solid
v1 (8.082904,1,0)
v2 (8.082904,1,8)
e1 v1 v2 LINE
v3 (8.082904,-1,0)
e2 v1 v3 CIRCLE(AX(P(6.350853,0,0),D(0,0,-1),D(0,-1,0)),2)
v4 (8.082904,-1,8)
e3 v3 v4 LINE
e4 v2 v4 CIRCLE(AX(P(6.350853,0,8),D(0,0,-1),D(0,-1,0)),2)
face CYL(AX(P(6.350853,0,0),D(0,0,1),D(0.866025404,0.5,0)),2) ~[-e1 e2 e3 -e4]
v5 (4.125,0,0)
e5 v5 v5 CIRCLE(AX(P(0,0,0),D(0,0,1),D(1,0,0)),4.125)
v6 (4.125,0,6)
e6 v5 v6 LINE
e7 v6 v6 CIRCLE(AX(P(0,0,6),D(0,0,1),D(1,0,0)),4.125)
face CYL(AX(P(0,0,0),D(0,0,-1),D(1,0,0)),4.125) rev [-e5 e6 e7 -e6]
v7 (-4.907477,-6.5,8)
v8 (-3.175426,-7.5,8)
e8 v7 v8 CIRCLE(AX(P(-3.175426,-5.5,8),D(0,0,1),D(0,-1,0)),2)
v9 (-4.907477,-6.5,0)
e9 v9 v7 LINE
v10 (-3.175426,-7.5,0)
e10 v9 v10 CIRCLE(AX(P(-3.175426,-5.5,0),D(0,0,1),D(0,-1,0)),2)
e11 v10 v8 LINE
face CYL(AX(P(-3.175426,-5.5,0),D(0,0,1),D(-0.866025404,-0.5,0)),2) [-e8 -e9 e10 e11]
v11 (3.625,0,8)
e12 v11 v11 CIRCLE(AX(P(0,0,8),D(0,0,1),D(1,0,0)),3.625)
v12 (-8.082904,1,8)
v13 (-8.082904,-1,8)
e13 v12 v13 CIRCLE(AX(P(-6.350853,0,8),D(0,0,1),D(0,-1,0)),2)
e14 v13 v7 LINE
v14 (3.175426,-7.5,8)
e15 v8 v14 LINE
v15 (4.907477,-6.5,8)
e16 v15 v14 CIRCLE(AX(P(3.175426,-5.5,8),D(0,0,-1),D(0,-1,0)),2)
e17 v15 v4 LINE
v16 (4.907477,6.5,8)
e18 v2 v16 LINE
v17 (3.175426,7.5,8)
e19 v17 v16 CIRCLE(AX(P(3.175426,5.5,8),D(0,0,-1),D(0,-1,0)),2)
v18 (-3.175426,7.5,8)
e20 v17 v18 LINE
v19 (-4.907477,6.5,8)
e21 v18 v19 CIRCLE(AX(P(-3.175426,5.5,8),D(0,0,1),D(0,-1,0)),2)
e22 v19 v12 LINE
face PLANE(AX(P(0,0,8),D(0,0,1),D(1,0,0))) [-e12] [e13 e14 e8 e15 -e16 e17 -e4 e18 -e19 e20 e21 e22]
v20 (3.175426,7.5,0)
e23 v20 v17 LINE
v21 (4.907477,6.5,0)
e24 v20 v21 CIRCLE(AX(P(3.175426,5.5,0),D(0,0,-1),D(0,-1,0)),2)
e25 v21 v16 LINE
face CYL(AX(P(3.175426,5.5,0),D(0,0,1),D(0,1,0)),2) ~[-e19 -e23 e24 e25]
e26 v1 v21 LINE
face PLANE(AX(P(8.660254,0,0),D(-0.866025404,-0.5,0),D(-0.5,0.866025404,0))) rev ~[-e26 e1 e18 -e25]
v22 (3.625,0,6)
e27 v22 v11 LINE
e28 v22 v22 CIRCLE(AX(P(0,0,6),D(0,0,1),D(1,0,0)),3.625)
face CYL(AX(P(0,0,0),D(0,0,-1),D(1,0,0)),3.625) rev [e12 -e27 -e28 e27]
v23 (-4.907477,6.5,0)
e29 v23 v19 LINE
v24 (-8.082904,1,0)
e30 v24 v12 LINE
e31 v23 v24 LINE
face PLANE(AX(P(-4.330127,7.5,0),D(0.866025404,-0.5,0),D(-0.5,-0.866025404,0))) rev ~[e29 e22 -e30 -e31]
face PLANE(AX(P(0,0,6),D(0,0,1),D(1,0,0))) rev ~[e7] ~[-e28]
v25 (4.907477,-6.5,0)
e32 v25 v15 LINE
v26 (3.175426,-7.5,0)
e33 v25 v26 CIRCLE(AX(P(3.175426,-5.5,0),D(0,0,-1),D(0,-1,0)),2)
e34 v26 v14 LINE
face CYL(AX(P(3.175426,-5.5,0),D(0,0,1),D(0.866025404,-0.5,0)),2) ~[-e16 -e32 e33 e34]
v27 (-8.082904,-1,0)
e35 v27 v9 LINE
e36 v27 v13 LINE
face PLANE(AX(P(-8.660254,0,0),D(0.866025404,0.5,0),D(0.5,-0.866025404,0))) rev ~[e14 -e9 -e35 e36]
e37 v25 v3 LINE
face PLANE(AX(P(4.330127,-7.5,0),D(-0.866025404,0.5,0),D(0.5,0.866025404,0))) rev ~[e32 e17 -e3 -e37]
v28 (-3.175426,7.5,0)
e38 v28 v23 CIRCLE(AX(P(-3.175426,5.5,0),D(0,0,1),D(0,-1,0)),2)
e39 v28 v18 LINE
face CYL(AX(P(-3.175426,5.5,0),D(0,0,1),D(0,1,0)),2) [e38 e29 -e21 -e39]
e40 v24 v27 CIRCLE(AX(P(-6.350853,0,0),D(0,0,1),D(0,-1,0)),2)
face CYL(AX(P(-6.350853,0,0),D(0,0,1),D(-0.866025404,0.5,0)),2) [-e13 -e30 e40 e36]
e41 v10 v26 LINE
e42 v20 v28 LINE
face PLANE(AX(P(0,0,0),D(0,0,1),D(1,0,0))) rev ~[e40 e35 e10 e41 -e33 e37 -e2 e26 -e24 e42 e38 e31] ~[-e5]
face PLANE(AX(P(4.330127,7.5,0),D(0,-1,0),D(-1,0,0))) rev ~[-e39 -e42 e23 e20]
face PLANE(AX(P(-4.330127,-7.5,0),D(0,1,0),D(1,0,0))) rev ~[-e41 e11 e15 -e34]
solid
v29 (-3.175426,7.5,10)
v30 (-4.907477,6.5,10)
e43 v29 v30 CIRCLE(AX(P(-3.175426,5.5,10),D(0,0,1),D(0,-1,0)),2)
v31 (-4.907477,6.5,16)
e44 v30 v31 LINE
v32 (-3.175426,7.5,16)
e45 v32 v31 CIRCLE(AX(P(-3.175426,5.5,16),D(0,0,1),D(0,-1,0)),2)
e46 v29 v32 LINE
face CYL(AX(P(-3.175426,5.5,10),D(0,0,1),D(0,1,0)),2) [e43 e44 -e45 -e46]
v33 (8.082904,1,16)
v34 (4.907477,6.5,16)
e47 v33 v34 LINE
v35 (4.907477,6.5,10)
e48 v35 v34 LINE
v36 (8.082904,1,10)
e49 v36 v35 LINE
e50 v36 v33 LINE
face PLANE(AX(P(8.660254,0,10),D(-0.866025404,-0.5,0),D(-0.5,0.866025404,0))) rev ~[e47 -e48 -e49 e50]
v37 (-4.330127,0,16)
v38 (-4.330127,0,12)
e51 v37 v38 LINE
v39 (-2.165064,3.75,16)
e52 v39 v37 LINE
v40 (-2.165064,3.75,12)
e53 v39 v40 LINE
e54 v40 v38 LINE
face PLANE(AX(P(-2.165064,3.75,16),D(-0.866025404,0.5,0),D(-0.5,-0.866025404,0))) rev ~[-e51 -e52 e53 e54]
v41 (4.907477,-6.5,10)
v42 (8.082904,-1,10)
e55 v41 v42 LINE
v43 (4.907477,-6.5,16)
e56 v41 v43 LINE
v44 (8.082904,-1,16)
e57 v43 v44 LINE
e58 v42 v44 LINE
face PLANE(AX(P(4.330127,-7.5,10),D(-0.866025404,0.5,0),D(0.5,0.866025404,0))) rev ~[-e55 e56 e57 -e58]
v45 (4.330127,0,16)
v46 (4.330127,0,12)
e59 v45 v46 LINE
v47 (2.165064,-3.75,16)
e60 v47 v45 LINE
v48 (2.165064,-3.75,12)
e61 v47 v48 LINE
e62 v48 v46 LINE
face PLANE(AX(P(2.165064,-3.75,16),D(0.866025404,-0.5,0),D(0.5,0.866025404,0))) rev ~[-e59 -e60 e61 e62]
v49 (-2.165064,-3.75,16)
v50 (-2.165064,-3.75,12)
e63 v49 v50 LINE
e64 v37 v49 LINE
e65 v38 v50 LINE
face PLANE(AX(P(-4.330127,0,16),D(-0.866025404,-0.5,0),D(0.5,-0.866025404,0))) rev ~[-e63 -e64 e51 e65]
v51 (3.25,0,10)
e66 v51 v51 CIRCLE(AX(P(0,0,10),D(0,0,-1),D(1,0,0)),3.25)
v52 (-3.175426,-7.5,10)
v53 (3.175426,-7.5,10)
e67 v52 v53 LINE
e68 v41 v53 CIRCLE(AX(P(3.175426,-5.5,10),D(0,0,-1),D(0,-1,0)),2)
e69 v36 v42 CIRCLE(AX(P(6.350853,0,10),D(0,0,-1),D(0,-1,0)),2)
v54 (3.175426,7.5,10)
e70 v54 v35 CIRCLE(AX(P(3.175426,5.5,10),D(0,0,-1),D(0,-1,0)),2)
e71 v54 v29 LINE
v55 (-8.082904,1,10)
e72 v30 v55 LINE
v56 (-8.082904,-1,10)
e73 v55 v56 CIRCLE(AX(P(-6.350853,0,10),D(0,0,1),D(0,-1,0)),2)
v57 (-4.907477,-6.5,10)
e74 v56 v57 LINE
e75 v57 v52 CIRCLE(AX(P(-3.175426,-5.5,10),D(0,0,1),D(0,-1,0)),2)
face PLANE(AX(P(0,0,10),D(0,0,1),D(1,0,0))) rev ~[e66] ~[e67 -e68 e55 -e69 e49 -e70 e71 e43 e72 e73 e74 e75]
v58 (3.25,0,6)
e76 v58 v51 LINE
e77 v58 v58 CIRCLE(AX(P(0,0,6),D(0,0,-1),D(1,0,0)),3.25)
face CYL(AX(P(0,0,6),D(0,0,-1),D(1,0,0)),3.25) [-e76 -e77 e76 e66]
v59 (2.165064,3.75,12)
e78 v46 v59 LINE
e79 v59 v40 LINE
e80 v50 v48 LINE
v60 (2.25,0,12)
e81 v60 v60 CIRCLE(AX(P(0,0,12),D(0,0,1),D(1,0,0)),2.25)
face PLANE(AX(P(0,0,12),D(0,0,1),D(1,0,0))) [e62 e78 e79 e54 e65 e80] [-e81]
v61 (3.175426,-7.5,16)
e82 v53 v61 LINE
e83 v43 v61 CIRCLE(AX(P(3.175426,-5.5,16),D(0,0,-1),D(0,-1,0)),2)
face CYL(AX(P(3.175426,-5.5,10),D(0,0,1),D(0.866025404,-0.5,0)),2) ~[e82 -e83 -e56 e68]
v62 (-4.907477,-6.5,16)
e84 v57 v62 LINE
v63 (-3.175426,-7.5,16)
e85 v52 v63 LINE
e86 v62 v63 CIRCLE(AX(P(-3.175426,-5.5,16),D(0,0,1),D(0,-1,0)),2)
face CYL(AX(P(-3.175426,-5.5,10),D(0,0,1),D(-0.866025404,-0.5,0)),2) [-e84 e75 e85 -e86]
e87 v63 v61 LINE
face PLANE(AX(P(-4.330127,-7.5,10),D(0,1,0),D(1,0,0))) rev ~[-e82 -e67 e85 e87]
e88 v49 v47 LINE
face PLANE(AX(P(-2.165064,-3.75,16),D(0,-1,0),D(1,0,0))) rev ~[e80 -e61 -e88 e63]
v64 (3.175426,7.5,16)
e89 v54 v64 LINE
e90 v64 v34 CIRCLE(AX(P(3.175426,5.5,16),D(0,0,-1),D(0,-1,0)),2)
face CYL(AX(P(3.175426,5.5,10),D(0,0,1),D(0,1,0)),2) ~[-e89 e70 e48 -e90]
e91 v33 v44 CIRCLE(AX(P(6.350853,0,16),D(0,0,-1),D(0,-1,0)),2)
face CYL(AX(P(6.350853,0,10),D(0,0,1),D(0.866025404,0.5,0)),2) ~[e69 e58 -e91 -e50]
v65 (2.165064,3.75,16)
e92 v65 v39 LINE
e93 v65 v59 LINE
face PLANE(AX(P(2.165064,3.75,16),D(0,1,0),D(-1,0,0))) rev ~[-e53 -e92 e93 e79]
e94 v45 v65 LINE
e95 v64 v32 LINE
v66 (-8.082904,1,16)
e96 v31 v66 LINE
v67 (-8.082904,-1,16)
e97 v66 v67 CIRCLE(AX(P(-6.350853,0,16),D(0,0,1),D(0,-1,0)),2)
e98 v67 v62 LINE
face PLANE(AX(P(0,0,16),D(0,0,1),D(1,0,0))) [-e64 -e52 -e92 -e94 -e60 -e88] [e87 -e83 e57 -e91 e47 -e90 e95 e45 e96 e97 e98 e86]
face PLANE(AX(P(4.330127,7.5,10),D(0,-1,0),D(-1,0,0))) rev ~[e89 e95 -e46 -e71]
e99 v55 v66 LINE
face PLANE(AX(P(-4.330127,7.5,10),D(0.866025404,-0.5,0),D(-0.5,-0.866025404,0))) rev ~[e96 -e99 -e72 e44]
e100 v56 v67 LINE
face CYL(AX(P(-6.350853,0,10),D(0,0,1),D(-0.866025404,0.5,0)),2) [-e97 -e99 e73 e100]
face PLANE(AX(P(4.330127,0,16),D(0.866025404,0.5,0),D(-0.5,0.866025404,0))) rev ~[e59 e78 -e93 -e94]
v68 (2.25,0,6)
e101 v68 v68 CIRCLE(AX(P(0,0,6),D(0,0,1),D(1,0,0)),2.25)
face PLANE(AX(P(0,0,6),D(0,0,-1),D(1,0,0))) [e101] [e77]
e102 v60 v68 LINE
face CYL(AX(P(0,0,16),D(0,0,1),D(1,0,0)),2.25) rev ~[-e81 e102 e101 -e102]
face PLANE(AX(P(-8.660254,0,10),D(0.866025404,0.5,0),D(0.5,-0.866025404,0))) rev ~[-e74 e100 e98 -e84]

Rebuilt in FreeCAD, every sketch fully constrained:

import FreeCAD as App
import Part
import Sketcher
Q = App.Units.Quantity


def edges_at(feature, points):
    """Names of the edges that pass closest to the given points."""
    edges = feature.Shape.Edges
    near = lambda p: min(range(len(edges)), key=lambda i: edges[i].distToShape(Part.Vertex(*p))[0])
    return sorted({f"Edge{near(p) + 1}" for p in points})


def add_polygon(sketch, points):
    """Adds a closed chain of lines whose ends are joined by coincident constraints."""
    first, n = sketch.GeometryCount, len(points)
    for a, b in zip(points, points[1:] + points[:1]):
        sketch.addGeometry(Part.LineSegment(App.Vector(*a, 0), App.Vector(*b, 0)), False)
    for i in range(n):
        sketch.addConstraint(Sketcher.Constraint("Coincident", first + i, 2, first + (i + 1) % n, 1))

doc = App.newDocument("Part")
body = doc.addObject("PartDesign::Body", "Body")

# Sketch on XY plane
sketch1 = doc.addObject("Sketcher::SketchObject", "Sketch")
body.addObject(sketch1)
sketch1.AttachmentSupport = (doc.XY_Plane, [""])
sketch1.MapMode = "FlatFace"
add_polygon(sketch1, [(4.3, 7.5), (-4.3, 7.5), (-8.7, 0), (-4.3, -7.5), (4.3, -7.5), (8.7, 0)])  # lines 0-5
sketch1.addGeometry(Part.Circle(App.Vector(0, 0, 0), App.Vector(0, 0, 1), 3.6), False)  # 6
sketch1.addConstraint(Sketcher.Constraint("Horizontal", 0))
sketch1.addConstraint(Sketcher.Constraint("Horizontal", 3))
sketch1.addConstraint(Sketcher.Constraint("Coincident", 6, 3, -1, 1))
sketch1.addConstraint(Sketcher.Constraint("Symmetric", 0, 2, 3, 2, -1, 1))
sketch1.addConstraint(Sketcher.Constraint("Symmetric", 1, 2, 4, 2, -1, 1))
sketch1.addConstraint(Sketcher.Constraint("PointOnObject", 1, 2, -1))
sketch1.addConstraint(Sketcher.Constraint("Parallel", 2, 5))
sketch1.addConstraint(Sketcher.Constraint("Vertical", 0, 2, 2, 2))
sketch1.addConstraint(Sketcher.Constraint("Diameter", 6, Q("7.25 mm")))
sketch1.addConstraint(Sketcher.Constraint("Angle", 1, Q("-120 deg")))
sketch1.addConstraint(Sketcher.Constraint("DistanceY", 2, 2, 0, 2, Q("15 mm")))
sketch1.addConstraint(Sketcher.Constraint("DistanceX", 0, 2, 0, 1, Q("8.660254 mm")))
pad1 = doc.addObject("PartDesign::Pad", "Pad")
body.addObject(pad1)
pad1.Profile = sketch1
pad1.Length = 8

# Sketch on XY plane
sketch2 = doc.addObject("Sketcher::SketchObject", "Sketch001")
body.addObject(sketch2)
sketch2.AttachmentSupport = (doc.XY_Plane, [""])
sketch2.MapMode = "FlatFace"
sketch2.addGeometry(Part.Circle(App.Vector(0, 0, 0), App.Vector(0, 0, 1), 4.1), False)
sketch2.addGeometry(Part.Circle(App.Vector(0, 0, 0), App.Vector(0, 0, 1), 3.6), False)
sketch2.addConstraint(Sketcher.Constraint("Coincident", 0, 3, -1, 1))
sketch2.addConstraint(Sketcher.Constraint("Coincident", 1, 3, -1, 1))
sketch2.addConstraint(Sketcher.Constraint("Diameter", 0, Q("8.25 mm")))
sketch2.addConstraint(Sketcher.Constraint("Diameter", 1, Q("7.25 mm")))
pocket1 = doc.addObject("PartDesign::Pocket", "Pocket")
body.addObject(pocket1)
pocket1.Profile = sketch2
pocket1.Length = 6
pocket1.Reversed = True
doc.recompute()

fillet = doc.addObject("PartDesign::Fillet", "Fillet")
body.addObject(fillet)
fillet.Base = (pocket1, edges_at(pocket1, [
    (-8.66, 0, 4),
    (-4.33, 7.5, 4),
    (-4.33, -7.5, 4),
    (4.33, -7.5, 4),
    (8.66, 0, 4),
    (4.33, 7.5, 4),
]))
fillet.Radius = 2
body2 = doc.addObject("PartDesign::Body", "Body001")

# Sketch on XY plane
sketch3 = doc.addObject("Sketcher::SketchObject", "Sketch002")
body2.addObject(sketch3)
sketch3.AttachmentSupport = (doc.getObject("XY_Plane001"), [""])
sketch3.MapMode = "FlatFace"
sketch3.AttachmentOffset = App.Placement(App.Vector(0, 0, 6), App.Rotation())
sketch3.addGeometry(Part.Circle(App.Vector(0, 0, 0), App.Vector(0, 0, 1), 3.2), False)
sketch3.addConstraint(Sketcher.Constraint("Coincident", 0, 3, -1, 1))
sketch3.addConstraint(Sketcher.Constraint("Diameter", 0, Q("6.5 mm")))
pad2 = doc.addObject("PartDesign::Pad", "Pad001")
body2.addObject(pad2)
pad2.Profile = sketch3
pad2.Length = 4

# Sketch on XY plane
sketch4 = doc.addObject("Sketcher::SketchObject", "Sketch003")
body2.addObject(sketch4)
sketch4.AttachmentSupport = (doc.getObject("XY_Plane001"), [""])
sketch4.MapMode = "FlatFace"
sketch4.AttachmentOffset = App.Placement(App.Vector(0, 0, 10), App.Rotation())
add_polygon(sketch4, [(4, 8), (-4, 8), (-9, 0), (-4, -8), (4, -8), (9, 0)])  # lines 0-5
sketch4.addConstraint(Sketcher.Constraint("Horizontal", 0))
sketch4.addConstraint(Sketcher.Constraint("Horizontal", 3))
sketch4.addConstraint(Sketcher.Constraint("Symmetric", 0, 2, 3, 2, -1, 1))
sketch4.addConstraint(Sketcher.Constraint("Symmetric", 1, 2, 4, 2, -1, 1))
sketch4.addConstraint(Sketcher.Constraint("PointOnObject", 1, 2, -1))
sketch4.addConstraint(Sketcher.Constraint("Parallel", 2, 5))
sketch4.addConstraint(Sketcher.Constraint("Vertical", 0, 2, 2, 2))
sketch4.addConstraint(Sketcher.Constraint("Angle", 1, Q("-120 deg")))
sketch4.addConstraint(Sketcher.Constraint("DistanceY", 2, 2, 0, 2, Q("15 mm")))
sketch4.addConstraint(Sketcher.Constraint("DistanceX", 0, 2, 0, 1, Q("8.660254 mm")))
pad3 = doc.addObject("PartDesign::Pad", "Pad002")
body2.addObject(pad3)
pad3.Profile = sketch4
pad3.Length = 6

# Sketch on XY plane
sketch5 = doc.addObject("Sketcher::SketchObject", "Sketch004")
body2.addObject(sketch5)
sketch5.AttachmentSupport = (doc.getObject("XY_Plane001"), [""])
sketch5.MapMode = "FlatFace"
sketch5.AttachmentOffset = App.Placement(App.Vector(0, 0, 16), App.Rotation())
sketch5.addGeometry(Part.Circle(App.Vector(0, 0, 0), App.Vector(0, 0, 1), 2.2), False)
sketch5.addConstraint(Sketcher.Constraint("Coincident", 0, 3, -1, 1))
sketch5.addConstraint(Sketcher.Constraint("Diameter", 0, Q("4.5 mm")))
pocket2 = doc.addObject("PartDesign::Pocket", "Pocket001")
body2.addObject(pocket2)
pocket2.Profile = sketch5
pocket2.Type = "ThroughAll"

# Sketch on XY plane
sketch6 = doc.addObject("Sketcher::SketchObject", "Sketch005")
body2.addObject(sketch6)
sketch6.AttachmentSupport = (doc.getObject("XY_Plane001"), [""])
sketch6.MapMode = "FlatFace"
sketch6.AttachmentOffset = App.Placement(App.Vector(0, 0, 16), App.Rotation())
add_polygon(sketch6, [(2.2, 3.8), (-2.2, 3.8), (-4.3, 0), (-2.2, -3.8), (2.2, -3.8), (4.3, 0)])  # lines 0-5
sketch6.addGeometry(Part.Circle(App.Vector(0, 0, 0), App.Vector(0, 0, 1), 2.2), False)  # 6
sketch6.addConstraint(Sketcher.Constraint("Horizontal", 0))
sketch6.addConstraint(Sketcher.Constraint("Horizontal", 3))
sketch6.addConstraint(Sketcher.Constraint("Coincident", 6, 3, -1, 1))
sketch6.addConstraint(Sketcher.Constraint("Symmetric", 0, 2, 3, 2, -1, 1))
sketch6.addConstraint(Sketcher.Constraint("Symmetric", 1, 2, 4, 2, -1, 1))
sketch6.addConstraint(Sketcher.Constraint("PointOnObject", 1, 2, -1))
sketch6.addConstraint(Sketcher.Constraint("Parallel", 2, 5))
sketch6.addConstraint(Sketcher.Constraint("Vertical", 0, 2, 2, 2))
sketch6.addConstraint(Sketcher.Constraint("Diameter", 6, Q("4.5 mm")))
sketch6.addConstraint(Sketcher.Constraint("Angle", 1, Q("-120 deg")))
sketch6.addConstraint(Sketcher.Constraint("DistanceY", 2, 2, 0, 2, Q("7.5 mm")))
sketch6.addConstraint(Sketcher.Constraint("DistanceX", 0, 2, 0, 1, Q("4.330127 mm")))
pocket3 = doc.addObject("PartDesign::Pocket", "Pocket002")
body2.addObject(pocket3)
pocket3.Profile = sketch6
pocket3.Length = 4
doc.recompute()

fillet2 = doc.addObject("PartDesign::Fillet", "Fillet001")
body2.addObject(fillet2)
fillet2.Base = (pocket3, edges_at(pocket3, [
    (-8.66, 0, 13),
    (-4.33, 7.5, 13),
    (-4.33, -7.5, 13),
    (4.33, 7.5, 13),
    (8.66, 0, 13),
    (4.33, -7.5, 13),
]))
fillet2.Radius = 2

doc.recompute()
